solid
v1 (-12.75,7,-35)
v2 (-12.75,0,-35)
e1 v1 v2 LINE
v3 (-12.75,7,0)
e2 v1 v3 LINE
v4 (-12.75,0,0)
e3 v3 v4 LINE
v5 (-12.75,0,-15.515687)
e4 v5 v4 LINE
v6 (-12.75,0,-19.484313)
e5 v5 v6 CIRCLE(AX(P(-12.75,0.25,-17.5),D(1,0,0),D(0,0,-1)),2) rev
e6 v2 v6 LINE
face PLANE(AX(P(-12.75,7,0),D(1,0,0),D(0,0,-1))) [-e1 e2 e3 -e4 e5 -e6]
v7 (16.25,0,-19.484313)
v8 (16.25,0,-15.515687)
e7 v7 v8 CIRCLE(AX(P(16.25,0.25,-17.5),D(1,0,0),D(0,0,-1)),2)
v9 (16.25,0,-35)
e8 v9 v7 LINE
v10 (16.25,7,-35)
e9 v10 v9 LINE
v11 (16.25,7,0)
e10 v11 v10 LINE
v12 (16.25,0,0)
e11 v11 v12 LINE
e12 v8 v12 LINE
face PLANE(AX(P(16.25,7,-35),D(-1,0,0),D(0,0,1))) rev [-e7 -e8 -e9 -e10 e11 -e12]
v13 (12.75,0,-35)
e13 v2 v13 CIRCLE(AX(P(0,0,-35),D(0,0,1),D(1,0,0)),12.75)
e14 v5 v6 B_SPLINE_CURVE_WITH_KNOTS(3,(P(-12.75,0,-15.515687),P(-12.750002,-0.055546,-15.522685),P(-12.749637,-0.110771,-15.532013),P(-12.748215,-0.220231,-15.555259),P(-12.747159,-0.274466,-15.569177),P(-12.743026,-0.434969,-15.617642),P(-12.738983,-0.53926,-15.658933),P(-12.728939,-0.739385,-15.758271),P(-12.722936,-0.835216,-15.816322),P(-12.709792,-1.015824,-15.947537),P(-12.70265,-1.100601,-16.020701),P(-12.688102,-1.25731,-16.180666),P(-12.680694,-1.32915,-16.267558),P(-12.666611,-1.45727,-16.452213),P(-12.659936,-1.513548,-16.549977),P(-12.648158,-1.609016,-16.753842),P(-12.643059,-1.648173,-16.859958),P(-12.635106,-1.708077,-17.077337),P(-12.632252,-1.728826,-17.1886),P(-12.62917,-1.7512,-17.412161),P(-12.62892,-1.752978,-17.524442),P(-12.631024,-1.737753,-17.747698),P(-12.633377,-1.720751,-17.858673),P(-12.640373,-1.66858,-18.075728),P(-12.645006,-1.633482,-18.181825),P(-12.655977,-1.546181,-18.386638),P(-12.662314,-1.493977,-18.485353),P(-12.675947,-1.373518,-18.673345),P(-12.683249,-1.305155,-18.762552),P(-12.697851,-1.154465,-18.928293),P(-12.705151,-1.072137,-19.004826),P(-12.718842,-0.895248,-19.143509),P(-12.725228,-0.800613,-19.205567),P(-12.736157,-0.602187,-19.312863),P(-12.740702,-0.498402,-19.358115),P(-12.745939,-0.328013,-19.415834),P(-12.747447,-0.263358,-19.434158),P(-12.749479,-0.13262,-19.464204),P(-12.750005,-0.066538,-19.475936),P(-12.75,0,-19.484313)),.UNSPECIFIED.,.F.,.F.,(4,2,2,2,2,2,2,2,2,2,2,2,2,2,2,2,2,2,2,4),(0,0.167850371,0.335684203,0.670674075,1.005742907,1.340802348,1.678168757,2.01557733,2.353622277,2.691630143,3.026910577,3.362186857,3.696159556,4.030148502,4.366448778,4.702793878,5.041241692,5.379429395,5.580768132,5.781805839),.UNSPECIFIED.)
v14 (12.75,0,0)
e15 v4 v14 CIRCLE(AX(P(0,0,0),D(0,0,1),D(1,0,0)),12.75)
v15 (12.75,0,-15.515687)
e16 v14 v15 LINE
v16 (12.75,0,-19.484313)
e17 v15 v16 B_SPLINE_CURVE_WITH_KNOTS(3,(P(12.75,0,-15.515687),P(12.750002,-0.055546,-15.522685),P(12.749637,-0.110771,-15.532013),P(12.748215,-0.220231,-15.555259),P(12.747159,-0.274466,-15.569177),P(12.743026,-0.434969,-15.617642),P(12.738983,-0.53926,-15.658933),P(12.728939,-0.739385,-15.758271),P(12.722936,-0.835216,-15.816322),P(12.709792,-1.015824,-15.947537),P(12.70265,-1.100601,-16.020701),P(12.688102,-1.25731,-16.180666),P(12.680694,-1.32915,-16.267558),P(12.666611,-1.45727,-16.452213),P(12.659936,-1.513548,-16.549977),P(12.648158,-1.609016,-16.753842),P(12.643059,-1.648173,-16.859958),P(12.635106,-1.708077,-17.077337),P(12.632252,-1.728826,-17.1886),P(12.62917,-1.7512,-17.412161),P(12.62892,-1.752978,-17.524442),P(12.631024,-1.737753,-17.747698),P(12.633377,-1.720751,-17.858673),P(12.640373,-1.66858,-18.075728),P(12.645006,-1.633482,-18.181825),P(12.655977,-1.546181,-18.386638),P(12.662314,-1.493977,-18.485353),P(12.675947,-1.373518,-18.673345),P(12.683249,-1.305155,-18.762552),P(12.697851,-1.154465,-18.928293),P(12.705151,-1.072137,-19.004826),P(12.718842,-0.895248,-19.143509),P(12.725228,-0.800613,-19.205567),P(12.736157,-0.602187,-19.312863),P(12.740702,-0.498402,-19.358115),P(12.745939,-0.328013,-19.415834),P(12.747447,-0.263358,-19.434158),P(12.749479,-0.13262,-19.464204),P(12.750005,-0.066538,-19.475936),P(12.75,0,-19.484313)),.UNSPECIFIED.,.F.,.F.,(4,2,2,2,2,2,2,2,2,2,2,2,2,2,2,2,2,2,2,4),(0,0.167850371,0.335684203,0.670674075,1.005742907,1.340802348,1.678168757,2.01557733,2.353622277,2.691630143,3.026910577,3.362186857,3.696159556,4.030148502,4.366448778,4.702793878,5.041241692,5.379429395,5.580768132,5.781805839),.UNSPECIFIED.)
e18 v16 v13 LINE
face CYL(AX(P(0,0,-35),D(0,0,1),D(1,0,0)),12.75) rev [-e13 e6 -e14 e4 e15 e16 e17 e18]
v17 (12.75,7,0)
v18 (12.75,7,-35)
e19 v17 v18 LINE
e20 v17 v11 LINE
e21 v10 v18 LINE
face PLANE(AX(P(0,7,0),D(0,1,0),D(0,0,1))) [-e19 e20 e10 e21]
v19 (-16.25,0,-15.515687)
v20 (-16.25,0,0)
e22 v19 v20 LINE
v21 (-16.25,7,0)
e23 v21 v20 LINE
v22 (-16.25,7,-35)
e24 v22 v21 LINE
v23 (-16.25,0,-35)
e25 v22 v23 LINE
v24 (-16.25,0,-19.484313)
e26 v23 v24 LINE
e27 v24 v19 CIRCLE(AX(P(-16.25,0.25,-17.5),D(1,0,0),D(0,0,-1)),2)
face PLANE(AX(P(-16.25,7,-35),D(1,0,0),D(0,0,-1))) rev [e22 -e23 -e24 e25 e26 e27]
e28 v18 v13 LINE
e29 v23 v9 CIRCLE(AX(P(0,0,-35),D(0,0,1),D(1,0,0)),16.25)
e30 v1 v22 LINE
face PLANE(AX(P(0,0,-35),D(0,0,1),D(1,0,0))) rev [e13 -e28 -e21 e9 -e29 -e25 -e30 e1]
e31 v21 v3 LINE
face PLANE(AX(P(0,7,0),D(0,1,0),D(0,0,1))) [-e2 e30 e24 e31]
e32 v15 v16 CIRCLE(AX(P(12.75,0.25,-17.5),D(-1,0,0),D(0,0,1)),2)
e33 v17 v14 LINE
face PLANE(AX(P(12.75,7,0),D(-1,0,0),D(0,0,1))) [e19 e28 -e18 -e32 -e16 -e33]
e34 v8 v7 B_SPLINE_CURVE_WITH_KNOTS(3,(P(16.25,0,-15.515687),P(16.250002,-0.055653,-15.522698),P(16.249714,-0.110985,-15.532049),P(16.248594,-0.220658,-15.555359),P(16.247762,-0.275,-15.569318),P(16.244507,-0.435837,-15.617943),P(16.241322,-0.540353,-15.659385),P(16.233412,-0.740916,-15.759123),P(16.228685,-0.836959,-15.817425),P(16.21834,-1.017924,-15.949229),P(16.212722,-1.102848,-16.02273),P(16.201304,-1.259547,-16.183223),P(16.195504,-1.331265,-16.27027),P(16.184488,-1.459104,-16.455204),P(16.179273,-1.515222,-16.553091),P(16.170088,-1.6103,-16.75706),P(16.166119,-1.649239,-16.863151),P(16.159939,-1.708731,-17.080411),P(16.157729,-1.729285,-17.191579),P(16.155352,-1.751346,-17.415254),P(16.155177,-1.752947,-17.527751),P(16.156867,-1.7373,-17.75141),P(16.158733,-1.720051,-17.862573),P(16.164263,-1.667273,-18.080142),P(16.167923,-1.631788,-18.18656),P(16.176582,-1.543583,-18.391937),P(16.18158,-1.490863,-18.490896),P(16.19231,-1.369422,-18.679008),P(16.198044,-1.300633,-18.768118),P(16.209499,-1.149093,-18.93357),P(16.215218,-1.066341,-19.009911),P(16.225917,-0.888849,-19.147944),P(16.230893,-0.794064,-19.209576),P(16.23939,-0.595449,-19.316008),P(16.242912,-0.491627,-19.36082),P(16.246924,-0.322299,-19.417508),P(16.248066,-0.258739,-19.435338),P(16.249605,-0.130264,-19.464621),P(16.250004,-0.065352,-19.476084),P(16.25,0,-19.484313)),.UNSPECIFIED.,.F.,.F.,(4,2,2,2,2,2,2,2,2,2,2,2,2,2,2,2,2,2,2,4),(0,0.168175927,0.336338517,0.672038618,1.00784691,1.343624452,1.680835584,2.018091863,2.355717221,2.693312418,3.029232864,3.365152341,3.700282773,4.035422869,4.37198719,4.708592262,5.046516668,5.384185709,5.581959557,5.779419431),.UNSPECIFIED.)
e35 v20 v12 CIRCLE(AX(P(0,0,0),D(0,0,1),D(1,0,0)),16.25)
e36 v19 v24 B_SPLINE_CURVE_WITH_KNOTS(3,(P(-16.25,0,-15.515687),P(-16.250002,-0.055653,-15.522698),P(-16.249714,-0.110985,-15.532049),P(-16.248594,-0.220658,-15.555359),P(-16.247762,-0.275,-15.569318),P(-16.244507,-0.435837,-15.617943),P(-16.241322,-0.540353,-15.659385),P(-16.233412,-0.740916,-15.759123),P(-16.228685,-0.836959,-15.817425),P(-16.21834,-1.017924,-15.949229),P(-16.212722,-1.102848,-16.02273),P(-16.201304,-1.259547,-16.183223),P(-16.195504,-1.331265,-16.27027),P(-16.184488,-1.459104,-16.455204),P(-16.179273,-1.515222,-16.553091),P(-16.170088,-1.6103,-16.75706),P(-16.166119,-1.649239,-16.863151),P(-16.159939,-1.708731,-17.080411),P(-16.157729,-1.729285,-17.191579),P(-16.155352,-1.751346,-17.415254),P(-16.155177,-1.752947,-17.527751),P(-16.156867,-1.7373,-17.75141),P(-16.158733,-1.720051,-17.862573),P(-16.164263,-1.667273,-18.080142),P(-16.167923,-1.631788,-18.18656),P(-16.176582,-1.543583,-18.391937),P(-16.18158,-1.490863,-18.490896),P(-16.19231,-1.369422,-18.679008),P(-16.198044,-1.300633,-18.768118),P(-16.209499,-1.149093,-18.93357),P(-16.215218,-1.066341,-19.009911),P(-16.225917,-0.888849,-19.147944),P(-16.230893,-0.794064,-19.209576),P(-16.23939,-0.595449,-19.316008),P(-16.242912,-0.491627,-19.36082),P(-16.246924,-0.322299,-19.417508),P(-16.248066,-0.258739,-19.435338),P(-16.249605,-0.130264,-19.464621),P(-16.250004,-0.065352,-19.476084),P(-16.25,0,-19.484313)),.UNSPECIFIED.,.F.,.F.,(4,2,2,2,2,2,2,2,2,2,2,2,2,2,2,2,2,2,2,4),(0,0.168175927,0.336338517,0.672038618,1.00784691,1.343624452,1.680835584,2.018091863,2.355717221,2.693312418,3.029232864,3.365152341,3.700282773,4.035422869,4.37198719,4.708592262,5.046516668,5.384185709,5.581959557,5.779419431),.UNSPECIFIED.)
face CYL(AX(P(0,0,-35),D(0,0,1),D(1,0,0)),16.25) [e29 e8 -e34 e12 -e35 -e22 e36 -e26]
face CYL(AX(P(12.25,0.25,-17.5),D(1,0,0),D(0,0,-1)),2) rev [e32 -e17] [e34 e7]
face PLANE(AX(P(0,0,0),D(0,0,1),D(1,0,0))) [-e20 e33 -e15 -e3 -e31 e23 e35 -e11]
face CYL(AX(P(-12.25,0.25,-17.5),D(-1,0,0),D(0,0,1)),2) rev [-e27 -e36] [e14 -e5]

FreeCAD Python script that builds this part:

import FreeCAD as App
import Part
import Sketcher
from FreeCAD import Vector
Q = App.Units.Quantity

doc = App.newDocument("Part")
body = doc.addObject("PartDesign::Body", "Body")

sketch1 = body.newObject("Sketcher::SketchObject", "Sketch")
sketch1.AttachmentSupport = (doc.getObject("XY_Plane"), [""])
sketch1.MapMode = "FlatFace"
sketch1.addGeometry(Part.Circle(Vector(0, 0, 0), Vector(0, 0, 1), 16.25), False)
sketch1.addConstraint(Sketcher.Constraint("Coincident", 0, 3, -1, 1))
sketch1.addConstraint(Sketcher.Constraint("Diameter", 0, Q("32.5 mm")))
pad1 = body.newObject("PartDesign::Pad", "Pad")
pad1.Profile = sketch1
pad1.Length = 35
pad1.Reversed = True

sketch2 = body.newObject("Sketcher::SketchObject", "Sketch001")
sketch2.AttachmentSupport = (doc.getObject("XY_Plane"), [""])
sketch2.MapMode = "FlatFace"
sketch2.addGeometry(Part.Circle(Vector(0, 0, 0), Vector(0, 0, 1), 12.75), False)
sketch2.addConstraint(Sketcher.Constraint("Coincident", 0, 3, -1, 1))
sketch2.addConstraint(Sketcher.Constraint("Diameter", 0, Q("25.5 mm")))
pocket1 = body.newObject("PartDesign::Pocket", "Pocket")
pocket1.Profile = sketch2
pocket1.Length = 35

sketch3 = body.newObject("Sketcher::SketchObject", "Sketch002")
sketch3.AttachmentSupport = (doc.getObject("XY_Plane"), [""])
sketch3.MapMode = "FlatFace"
sketch3.AttachmentOffset = App.Placement(Vector(0, 0, -17.5), App.Rotation())
sketch3.addGeometry(Part.LineSegment(Vector(-16.47002, 16.591036, 0), Vector(-16.47002, 0, 0)), False)
sketch3.addGeometry(Part.LineSegment(Vector(-16.47002, 0, 0), Vector(16.25, 0, 0)), False)
sketch3.addGeometry(Part.LineSegment(Vector(16.25, 0, 0), Vector(16.25, 16.591036, 0)), False)
sketch3.addGeometry(Part.LineSegment(Vector(16.25, 16.591036, 0), Vector(-16.47002, 16.591036, 0)), False)
sketch3.addConstraint(Sketcher.Constraint("Coincident", 0, 2, 1, 1))
sketch3.addConstraint(Sketcher.Constraint("Coincident", 1, 2, 2, 1))
sketch3.addConstraint(Sketcher.Constraint("Coincident", 2, 2, 3, 1))
sketch3.addConstraint(Sketcher.Constraint("Coincident", 3, 2, 0, 1))
sketch3.addConstraint(Sketcher.Constraint("Vertical", 0))
sketch3.addConstraint(Sketcher.Constraint("Horizontal", 1))
sketch3.addConstraint(Sketcher.Constraint("Vertical", 2))
sketch3.addConstraint(Sketcher.Constraint("Horizontal", 3))
sketch3.addConstraint(Sketcher.Constraint("PointOnObject", 0, 2, -1))
sketch3.addConstraint(Sketcher.Constraint("DistanceX", -1, 1, 1, 2, Q("16.25 mm")))
sketch3.addConstraint(Sketcher.Constraint("DistanceX", 1, 1, 1, 2, Q("32.72002 mm")))
sketch3.addConstraint(Sketcher.Constraint("DistanceY", 0, 2, 0, 1, Q("16.591036 mm")))
pocket2 = body.newObject("PartDesign::Pocket", "Pocket001")
pocket2.Profile = sketch3
pocket2.Length = 35
pocket2.Midplane = True

sketch4 = body.newObject("Sketcher::SketchObject", "Sketch003")
sketch4.AttachmentSupport = (doc.getObject("XZ_Plane"), [""])
sketch4.MapMode = "FlatFace"
sketch4.addGeometry(Part.LineSegment(Vector(-16.25, -35, 0), Vector(-16.25, 0, 0)), False)
sketch4.addGeometry(Part.LineSegment(Vector(-16.25, 0, 0), Vector(16.25, 0, 0)), False)
sketch4.addGeometry(Part.LineSegment(Vector(16.25, 0, 0), Vector(16.25, -35, 0)), False)
sketch4.addGeometry(Part.LineSegment(Vector(16.25, -35, 0), Vector(-16.25, -35, 0)), False)
sketch4.addConstraint(Sketcher.Constraint("Coincident", 0, 2, 1, 1))
sketch4.addConstraint(Sketcher.Constraint("Coincident", 1, 2, 2, 1))
sketch4.addConstraint(Sketcher.Constraint("Coincident", 2, 2, 3, 1))
sketch4.addConstraint(Sketcher.Constraint("Coincident", 3, 2, 0, 1))
sketch4.addConstraint(Sketcher.Constraint("Vertical", 0))
sketch4.addConstraint(Sketcher.Constraint("Horizontal", 1))
sketch4.addConstraint(Sketcher.Constraint("Vertical", 2))
sketch4.addConstraint(Sketcher.Constraint("Horizontal", 3))
sketch4.addConstraint(Sketcher.Constraint("Symmetric", 0, 2, 1, 2, -1, 1))
sketch4.addConstraint(Sketcher.Constraint("DistanceY", 0, 1, 0, 2, Q("35 mm")))
sketch4.addConstraint(Sketcher.Constraint("DistanceX", 1, 1, 1, 2, Q("32.5 mm")))
pad2 = body.newObject("PartDesign::Pad", "Pad001")
pad2.Profile = sketch4
pad2.Length = 7
pad2.Reversed = True

sketch5 = body.newObject("Sketcher::SketchObject", "Sketch004")
sketch5.AttachmentSupport = (doc.getObject("XZ_Plane"), [""])
sketch5.MapMode = "FlatFace"
sketch5.addGeometry(Part.LineSegment(Vector(-12.75, -35, 0), Vector(-12.75, 0, 0)), False)
sketch5.addGeometry(Part.LineSegment(Vector(-12.75, 0, 0), Vector(12.75, 0, 0)), False)
sketch5.addGeometry(Part.LineSegment(Vector(12.75, 0, 0), Vector(12.75, -35, 0)), False)
sketch5.addGeometry(Part.LineSegment(Vector(12.75, -35, 0), Vector(-12.75, -35, 0)), False)
sketch5.addConstraint(Sketcher.Constraint("Coincident", 0, 2, 1, 1))
sketch5.addConstraint(Sketcher.Constraint("Coincident", 1, 2, 2, 1))
sketch5.addConstraint(Sketcher.Constraint("Coincident", 2, 2, 3, 1))
sketch5.addConstraint(Sketcher.Constraint("Coincident", 3, 2, 0, 1))
sketch5.addConstraint(Sketcher.Constraint("Vertical", 0))
sketch5.addConstraint(Sketcher.Constraint("Horizontal", 1))
sketch5.addConstraint(Sketcher.Constraint("Vertical", 2))
sketch5.addConstraint(Sketcher.Constraint("Horizontal", 3))
sketch5.addConstraint(Sketcher.Constraint("Symmetric", 0, 2, 1, 2, -1, 1))
sketch5.addConstraint(Sketcher.Constraint("DistanceY", 0, 1, 0, 2, Q("35 mm")))
sketch5.addConstraint(Sketcher.Constraint("DistanceX", 1, 1, 1, 2, Q("25.5 mm")))
pocket3 = body.newObject("PartDesign::Pocket", "Pocket002")
pocket3.Profile = sketch5
pocket3.Length = 7

sketch6 = body.newObject("Sketcher::SketchObject", "Sketch005")
sketch6.AttachmentSupport = (doc.getObject("YZ_Plane"), [""])
sketch6.MapMode = "FlatFace"
sketch6.AttachmentOffset = App.Placement(Vector(0, 0, -16.25), App.Rotation())
sketch6.addGeometry(Part.Circle(Vector(0.25, -17.5, 0), Vector(0, 0, 1), 2), False)
sketch6.addConstraint(Sketcher.Constraint("Diameter", 0, Q("4 mm")))
sketch6.addConstraint(Sketcher.Constraint("DistanceY", 0, 3, -1, 1, Q("17.5 mm")))
sketch6.addConstraint(Sketcher.Constraint("DistanceX", -1, 1, 0, 3, Q("0.25 mm")))
pocket4 = body.newObject("PartDesign::Pocket", "Pocket003")
pocket4.Profile = sketch6
pocket4.Length = 4
pocket4.Reversed = True

sketch7 = body.newObject("Sketcher::SketchObject", "Sketch006")
sketch7.AttachmentSupport = (doc.getObject("YZ_Plane"), [""])
sketch7.MapMode = "FlatFace"
sketch7.AttachmentOffset = App.Placement(Vector(0, 0, 12.25), App.Rotation())
sketch7.addGeometry(Part.Circle(Vector(0.25, -17.5, 0), Vector(0, 0, 1), 2), False)
sketch7.addConstraint(Sketcher.Constraint("Diameter", 0, Q("4 mm")))
sketch7.addConstraint(Sketcher.Constraint("DistanceY", 0, 3, -1, 1, Q("17.5 mm")))
sketch7.addConstraint(Sketcher.Constraint("DistanceX", -1, 1, 0, 3, Q("0.25 mm")))
pocket5 = body.newObject("PartDesign::Pocket", "Pocket004")
pocket5.Profile = sketch7
pocket5.Length = 4
pocket5.Reversed = True

doc.recompute()
